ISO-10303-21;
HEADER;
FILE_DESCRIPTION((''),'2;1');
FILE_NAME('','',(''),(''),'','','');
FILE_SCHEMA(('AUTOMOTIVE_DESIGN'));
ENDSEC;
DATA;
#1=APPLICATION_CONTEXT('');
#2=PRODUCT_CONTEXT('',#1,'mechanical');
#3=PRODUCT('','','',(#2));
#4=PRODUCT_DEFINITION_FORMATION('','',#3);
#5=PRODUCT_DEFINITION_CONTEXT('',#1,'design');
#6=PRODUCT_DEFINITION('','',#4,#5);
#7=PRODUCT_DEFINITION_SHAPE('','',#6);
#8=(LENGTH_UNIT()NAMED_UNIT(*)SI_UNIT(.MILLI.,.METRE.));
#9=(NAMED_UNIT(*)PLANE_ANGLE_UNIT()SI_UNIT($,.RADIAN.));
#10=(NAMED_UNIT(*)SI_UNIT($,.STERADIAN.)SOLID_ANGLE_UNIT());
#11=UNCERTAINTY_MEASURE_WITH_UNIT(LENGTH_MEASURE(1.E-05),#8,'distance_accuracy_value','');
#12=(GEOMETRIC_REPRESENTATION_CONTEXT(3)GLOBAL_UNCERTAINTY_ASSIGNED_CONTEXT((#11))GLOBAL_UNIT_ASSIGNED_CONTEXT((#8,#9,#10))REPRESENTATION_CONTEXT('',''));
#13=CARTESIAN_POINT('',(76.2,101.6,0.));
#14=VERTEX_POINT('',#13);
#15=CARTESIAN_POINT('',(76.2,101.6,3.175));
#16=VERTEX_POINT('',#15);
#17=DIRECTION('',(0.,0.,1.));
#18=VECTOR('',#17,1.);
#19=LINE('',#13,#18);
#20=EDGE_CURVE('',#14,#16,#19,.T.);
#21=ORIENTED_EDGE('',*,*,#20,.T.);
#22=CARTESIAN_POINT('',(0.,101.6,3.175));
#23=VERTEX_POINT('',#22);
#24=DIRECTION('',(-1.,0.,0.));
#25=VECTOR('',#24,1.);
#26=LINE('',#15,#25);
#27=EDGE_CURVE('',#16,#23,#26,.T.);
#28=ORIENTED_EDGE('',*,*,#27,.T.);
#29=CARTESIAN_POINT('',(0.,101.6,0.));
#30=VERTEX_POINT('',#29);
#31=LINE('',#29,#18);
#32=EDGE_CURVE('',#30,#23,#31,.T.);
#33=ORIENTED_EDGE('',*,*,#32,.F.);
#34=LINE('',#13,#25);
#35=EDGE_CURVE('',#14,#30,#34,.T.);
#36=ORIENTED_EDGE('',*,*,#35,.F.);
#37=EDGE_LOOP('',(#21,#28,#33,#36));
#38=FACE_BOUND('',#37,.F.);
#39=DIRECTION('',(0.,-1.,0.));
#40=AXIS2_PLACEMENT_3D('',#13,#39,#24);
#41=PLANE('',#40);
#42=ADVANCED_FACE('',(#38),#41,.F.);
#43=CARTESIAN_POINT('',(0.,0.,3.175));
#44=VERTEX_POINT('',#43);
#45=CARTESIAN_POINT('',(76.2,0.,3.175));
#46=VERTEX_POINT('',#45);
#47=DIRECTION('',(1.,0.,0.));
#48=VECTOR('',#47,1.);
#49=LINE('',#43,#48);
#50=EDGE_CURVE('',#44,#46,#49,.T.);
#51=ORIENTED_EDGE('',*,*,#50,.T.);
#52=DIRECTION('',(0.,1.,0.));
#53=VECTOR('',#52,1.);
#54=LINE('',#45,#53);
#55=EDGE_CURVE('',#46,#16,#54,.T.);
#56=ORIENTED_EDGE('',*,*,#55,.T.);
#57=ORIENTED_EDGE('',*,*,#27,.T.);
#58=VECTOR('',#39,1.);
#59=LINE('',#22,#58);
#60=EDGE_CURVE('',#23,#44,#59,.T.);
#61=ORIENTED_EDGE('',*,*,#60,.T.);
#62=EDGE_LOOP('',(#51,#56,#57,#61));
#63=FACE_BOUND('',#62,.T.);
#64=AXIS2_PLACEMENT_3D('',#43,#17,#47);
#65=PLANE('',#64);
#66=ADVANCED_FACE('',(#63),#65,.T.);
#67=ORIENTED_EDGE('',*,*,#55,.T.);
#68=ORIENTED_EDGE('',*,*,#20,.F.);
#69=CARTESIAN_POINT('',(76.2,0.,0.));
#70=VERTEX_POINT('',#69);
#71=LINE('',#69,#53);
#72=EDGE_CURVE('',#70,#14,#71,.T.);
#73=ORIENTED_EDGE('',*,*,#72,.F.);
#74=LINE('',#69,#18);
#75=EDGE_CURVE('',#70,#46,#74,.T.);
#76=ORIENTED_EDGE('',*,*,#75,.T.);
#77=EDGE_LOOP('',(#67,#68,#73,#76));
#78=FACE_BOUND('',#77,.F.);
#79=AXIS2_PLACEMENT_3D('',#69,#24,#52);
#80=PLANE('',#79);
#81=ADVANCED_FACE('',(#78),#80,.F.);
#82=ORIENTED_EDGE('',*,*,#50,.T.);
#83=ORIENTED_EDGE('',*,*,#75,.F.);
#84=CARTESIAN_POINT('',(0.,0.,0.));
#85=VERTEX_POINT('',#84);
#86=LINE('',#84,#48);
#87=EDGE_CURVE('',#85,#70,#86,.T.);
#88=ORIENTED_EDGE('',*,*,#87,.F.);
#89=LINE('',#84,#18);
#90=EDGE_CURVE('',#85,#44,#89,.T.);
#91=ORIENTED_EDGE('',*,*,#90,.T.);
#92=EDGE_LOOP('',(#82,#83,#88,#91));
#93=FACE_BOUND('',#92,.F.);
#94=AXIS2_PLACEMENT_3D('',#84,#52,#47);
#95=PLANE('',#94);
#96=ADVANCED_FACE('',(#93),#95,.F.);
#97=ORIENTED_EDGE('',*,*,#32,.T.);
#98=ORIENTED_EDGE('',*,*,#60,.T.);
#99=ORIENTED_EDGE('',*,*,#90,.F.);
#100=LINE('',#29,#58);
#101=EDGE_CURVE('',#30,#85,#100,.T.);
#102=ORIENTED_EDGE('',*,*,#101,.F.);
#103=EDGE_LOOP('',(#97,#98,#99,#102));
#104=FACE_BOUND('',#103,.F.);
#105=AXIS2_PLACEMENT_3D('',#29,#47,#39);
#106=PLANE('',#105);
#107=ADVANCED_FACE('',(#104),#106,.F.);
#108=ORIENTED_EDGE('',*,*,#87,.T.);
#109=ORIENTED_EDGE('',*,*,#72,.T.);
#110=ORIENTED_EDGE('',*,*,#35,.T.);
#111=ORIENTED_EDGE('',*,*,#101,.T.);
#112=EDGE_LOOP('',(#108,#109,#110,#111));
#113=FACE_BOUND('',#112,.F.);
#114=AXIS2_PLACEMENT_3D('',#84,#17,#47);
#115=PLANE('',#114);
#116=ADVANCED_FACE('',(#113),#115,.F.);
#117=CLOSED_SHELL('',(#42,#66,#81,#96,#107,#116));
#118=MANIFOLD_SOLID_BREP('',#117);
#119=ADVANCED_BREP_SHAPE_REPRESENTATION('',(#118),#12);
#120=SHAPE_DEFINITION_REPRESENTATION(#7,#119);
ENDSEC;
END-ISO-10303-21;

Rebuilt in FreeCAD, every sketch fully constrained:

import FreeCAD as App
import Part
import Sketcher
Q = App.Units.Quantity

doc = App.newDocument("Part")
body = doc.addObject("PartDesign::Body", "Body")

# Sketch on XY plane
sketch1 = body.newObject("Sketcher::SketchObject", "Sketch")
sketch1.AttachmentSupport = (doc.getObject("XY_Plane"), [""])
sketch1.MapMode = "FlatFace"
sketch1.addGeometry([
    Part.LineSegment(App.Vector(0, 102, 0), App.Vector(0, 0, 0)),
    Part.LineSegment(App.Vector(0, 0, 0), App.Vector(76, 0, 0)),
    Part.LineSegment(App.Vector(76, 0, 0), App.Vector(76, 102, 0)),
    Part.LineSegment(App.Vector(76, 102, 0), App.Vector(0, 102, 0)),
], False)
sketch1.addConstraint([
    Sketcher.Constraint("Coincident", 0, 2, 1, 1),
    Sketcher.Constraint("Coincident", 1, 2, 2, 1),
    Sketcher.Constraint("Coincident", 2, 2, 3, 1),
    Sketcher.Constraint("Coincident", 3, 2, 0, 1),
    Sketcher.Constraint("Vertical", 0),
    Sketcher.Constraint("Horizontal", 1),
    Sketcher.Constraint("Vertical", 2),
    Sketcher.Constraint("Horizontal", 3),
    Sketcher.Constraint("Coincident", 0, 2, -1, 1),
    Sketcher.Constraint("DistanceX", 1, 1, 1, 2, Q("3 in")),
    Sketcher.Constraint("DistanceY", 0, 2, 0, 1, Q("4 in")),
])
pad1 = body.newObject("PartDesign::Pad", "Pad")
pad1.Profile = sketch1
pad1.Length = Q("0.125 in")

doc.recompute()
